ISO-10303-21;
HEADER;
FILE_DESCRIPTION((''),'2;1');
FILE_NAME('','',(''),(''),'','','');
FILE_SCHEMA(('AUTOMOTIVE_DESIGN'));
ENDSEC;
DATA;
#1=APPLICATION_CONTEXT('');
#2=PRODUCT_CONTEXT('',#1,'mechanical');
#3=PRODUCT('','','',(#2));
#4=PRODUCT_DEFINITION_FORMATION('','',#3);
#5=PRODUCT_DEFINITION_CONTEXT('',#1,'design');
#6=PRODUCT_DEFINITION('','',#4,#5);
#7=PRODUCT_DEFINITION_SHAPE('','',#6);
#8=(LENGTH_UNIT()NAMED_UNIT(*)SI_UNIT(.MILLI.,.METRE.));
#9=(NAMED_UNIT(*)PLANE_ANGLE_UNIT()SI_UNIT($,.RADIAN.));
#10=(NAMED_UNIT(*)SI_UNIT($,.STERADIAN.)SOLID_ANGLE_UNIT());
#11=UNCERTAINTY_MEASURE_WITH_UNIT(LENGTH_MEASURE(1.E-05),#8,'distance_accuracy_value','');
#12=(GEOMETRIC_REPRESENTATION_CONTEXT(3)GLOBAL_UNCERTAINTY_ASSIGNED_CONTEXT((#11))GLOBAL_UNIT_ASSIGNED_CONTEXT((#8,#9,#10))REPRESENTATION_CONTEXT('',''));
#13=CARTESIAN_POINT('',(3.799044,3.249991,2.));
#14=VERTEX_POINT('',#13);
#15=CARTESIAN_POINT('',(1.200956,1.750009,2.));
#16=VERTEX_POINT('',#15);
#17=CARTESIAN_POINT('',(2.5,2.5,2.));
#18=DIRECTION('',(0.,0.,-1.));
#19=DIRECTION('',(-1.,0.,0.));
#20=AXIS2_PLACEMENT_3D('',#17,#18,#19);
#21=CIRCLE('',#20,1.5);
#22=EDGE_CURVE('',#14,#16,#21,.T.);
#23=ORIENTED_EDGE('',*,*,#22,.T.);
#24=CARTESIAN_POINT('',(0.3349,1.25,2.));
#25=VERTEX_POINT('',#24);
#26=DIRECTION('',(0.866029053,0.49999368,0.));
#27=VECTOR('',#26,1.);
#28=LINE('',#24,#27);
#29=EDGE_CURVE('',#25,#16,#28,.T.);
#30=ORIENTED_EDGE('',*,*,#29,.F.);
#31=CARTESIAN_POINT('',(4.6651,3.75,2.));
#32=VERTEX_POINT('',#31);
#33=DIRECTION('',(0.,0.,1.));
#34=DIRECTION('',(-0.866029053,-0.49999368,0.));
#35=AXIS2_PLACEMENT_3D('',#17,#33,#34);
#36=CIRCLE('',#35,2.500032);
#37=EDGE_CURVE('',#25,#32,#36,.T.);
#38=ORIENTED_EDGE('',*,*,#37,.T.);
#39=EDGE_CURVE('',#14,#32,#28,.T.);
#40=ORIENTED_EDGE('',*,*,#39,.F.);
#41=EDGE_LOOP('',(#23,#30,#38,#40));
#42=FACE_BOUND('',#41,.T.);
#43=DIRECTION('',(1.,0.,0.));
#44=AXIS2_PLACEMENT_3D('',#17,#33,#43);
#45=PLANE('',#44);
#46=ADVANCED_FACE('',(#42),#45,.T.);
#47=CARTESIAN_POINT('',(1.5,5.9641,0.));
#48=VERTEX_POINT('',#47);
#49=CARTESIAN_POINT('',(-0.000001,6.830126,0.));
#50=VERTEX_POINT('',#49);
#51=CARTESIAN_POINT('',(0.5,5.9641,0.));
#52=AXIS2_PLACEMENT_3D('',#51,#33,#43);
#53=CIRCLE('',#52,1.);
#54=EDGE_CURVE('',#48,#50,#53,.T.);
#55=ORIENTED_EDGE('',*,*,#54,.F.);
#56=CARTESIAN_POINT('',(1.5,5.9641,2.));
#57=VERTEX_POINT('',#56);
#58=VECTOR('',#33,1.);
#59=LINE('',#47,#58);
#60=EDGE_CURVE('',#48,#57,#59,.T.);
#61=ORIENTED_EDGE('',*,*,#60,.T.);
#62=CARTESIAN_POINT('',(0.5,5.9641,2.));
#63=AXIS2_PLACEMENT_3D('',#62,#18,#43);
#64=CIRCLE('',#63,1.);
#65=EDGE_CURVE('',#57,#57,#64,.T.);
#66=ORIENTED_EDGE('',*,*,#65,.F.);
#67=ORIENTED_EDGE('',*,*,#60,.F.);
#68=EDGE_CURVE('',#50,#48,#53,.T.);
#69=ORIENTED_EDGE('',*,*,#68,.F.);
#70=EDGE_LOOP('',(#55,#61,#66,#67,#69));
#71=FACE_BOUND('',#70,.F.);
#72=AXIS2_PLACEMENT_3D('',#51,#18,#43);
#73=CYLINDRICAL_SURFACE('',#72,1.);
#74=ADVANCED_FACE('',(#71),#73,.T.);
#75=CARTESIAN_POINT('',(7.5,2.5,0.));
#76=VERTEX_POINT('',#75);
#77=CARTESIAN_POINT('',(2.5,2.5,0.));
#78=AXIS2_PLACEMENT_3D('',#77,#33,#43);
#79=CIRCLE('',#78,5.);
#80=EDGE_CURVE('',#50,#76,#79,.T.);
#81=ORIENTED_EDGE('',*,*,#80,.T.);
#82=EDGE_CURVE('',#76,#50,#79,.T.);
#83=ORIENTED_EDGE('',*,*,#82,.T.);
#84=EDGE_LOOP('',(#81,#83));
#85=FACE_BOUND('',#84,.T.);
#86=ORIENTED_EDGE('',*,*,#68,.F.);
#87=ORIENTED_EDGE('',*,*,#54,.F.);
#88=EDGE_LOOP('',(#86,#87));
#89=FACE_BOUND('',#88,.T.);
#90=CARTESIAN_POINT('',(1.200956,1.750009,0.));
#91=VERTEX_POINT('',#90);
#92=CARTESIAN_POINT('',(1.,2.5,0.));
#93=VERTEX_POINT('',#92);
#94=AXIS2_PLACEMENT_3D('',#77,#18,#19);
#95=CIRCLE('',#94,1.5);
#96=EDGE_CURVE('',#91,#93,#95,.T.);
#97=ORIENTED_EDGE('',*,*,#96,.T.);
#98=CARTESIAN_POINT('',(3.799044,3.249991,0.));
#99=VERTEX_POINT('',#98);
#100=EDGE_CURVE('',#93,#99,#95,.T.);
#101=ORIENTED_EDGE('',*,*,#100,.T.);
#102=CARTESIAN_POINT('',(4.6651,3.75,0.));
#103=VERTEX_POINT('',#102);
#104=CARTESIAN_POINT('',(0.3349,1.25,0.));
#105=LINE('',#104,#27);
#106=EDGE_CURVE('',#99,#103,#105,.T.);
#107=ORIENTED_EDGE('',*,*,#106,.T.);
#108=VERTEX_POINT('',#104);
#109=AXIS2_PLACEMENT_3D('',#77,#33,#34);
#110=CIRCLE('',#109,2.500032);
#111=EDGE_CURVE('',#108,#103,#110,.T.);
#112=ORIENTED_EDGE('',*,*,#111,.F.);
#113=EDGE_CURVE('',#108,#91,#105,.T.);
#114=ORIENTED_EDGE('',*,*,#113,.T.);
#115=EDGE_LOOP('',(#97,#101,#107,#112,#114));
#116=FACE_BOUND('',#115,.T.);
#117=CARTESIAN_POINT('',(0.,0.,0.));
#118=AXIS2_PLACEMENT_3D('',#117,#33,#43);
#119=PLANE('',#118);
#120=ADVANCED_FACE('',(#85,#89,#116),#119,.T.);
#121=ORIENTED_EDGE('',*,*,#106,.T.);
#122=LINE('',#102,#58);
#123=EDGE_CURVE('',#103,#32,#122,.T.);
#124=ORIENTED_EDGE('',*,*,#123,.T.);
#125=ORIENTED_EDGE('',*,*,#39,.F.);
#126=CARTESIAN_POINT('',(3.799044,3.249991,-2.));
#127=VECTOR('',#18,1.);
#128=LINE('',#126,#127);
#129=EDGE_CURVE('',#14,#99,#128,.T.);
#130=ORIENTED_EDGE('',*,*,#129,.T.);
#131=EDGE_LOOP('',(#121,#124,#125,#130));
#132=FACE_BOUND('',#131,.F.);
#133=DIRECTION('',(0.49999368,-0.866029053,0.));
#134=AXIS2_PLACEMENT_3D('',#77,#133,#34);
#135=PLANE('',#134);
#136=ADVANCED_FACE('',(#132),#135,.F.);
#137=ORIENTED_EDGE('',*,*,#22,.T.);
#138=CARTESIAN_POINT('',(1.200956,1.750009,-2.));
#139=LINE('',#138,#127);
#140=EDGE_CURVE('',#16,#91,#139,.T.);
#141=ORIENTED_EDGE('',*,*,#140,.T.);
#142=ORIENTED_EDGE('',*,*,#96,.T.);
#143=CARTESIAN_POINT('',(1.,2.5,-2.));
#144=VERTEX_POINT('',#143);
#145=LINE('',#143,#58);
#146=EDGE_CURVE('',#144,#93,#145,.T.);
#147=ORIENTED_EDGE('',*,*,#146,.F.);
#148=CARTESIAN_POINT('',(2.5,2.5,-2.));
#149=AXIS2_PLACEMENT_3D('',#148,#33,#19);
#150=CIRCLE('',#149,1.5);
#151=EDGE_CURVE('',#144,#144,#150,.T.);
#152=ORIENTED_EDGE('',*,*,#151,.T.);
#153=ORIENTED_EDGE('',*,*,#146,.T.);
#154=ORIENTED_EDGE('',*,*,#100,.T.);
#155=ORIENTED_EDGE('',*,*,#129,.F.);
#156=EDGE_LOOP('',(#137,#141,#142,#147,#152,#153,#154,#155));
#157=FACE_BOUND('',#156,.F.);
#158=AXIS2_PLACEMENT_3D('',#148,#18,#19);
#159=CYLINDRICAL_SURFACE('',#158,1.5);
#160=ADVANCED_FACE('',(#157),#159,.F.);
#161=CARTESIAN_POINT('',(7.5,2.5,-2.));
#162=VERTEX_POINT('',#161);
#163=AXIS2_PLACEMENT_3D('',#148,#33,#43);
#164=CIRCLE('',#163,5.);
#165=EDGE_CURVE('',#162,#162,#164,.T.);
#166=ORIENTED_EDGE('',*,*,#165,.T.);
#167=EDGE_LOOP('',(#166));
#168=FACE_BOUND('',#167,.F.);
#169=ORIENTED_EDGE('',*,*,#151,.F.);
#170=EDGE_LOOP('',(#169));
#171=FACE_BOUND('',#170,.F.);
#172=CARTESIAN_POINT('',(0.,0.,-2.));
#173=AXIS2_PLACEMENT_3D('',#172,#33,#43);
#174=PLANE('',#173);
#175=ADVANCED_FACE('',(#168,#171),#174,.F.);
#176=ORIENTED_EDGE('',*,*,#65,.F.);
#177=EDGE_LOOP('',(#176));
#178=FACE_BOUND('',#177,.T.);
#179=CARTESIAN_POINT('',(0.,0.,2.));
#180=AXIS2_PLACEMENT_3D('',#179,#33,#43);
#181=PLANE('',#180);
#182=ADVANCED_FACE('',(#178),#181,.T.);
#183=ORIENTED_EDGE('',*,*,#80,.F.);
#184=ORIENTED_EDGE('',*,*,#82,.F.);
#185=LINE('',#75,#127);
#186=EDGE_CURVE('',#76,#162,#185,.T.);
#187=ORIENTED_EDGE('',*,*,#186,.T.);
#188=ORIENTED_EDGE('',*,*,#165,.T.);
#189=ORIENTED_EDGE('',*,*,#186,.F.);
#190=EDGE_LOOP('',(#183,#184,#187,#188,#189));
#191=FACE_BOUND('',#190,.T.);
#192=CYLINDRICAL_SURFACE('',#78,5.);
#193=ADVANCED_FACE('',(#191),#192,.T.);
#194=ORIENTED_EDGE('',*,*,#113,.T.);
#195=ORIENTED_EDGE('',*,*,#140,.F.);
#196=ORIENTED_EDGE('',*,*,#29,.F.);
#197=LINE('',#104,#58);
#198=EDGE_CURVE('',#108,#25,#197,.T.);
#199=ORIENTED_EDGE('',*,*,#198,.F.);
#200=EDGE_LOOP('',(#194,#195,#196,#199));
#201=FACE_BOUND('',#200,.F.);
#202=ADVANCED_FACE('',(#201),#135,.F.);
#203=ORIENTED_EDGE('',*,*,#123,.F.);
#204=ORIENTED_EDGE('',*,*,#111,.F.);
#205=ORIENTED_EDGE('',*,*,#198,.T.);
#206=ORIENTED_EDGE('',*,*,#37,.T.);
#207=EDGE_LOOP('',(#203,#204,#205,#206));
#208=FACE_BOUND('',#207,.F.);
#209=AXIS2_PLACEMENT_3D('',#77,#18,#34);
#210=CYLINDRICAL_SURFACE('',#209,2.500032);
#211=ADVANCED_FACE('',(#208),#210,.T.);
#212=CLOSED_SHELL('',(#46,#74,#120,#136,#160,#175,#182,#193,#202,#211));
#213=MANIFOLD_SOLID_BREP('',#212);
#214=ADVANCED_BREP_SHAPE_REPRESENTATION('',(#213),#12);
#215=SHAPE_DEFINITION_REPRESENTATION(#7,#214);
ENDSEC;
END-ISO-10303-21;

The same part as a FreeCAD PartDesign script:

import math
import FreeCAD as App
import Part
import Sketcher

V = App.Vector
Q = App.Units.Quantity

doc = App.newDocument("Part")
params = doc.addObject("Spreadsheet::Sheet", "Params")
for row, (alias, value) in enumerate([
    ("sketch1_diameter", "2 mm"),
    ("pad1_length", "2 mm"),
    ("sketch2_diameter", "10 mm"),
    ("pad2_length", "2 mm"),
    ("sketch3_radius", "2.5 mm"),
    ("pad3_length", "2 mm"),
    ("sketch4_diameter", "3 mm"),
    ("pocket1_length", "4 mm"),
], start=1):
    params.set(f"A{row}", alias)
    params.set(f"B{row}", "=" + value)
    params.setAlias(f"B{row}", alias)

body = doc.addObject("PartDesign::Body", "Body")

# Sketch on XY plane
sketch1 = doc.addObject("Sketcher::SketchObject", "Sketch")
body.addObject(sketch1)
sketch1.AttachmentSupport = (doc.XY_Plane, [""])
sketch1.MapMode = "FlatFace"
sketch1.addGeometry(Part.Circle(V(0.5, 6, 0), V(0, 0, 1), 1), False)
sketch1.addConstraint([
    Sketcher.Constraint("Diameter", 0, 2.0),
    Sketcher.Constraint("DistanceX", -1, 1, 0, 3, 0.5),
    Sketcher.Constraint("DistanceY", -1, 1, 0, 3, 5.964),
])
sketch1.setExpression("Constraints[0]", "Params.sketch1_diameter")
pad1 = doc.addObject("PartDesign::Pad", "Pad")
body.addObject(pad1)
pad1.Profile = sketch1
pad1.setExpression("Length", "Params.pad1_length")

# Sketch on XY plane
sketch2 = doc.addObject("Sketcher::SketchObject", "Sketch001")
body.addObject(sketch2)
sketch2.AttachmentSupport = (doc.XY_Plane, [""])
sketch2.MapMode = "FlatFace"
sketch2.addGeometry(Part.Circle(V(2, 2, 0), V(0, 0, 1), 5), False)
sketch2.addConstraint([
    Sketcher.Constraint("Diameter", 0, 10.0),
    Sketcher.Constraint("DistanceX", -1, 1, 0, 3, 2.5),
    Sketcher.Constraint("DistanceY", -1, 1, 0, 3, 2.5),
])
sketch2.setExpression("Constraints[0]", "Params.sketch2_diameter")
pad2 = doc.addObject("PartDesign::Pad", "Pad001")
body.addObject(pad2)
pad2.Profile = sketch2
pad2.setExpression("Length", "Params.pad2_length")
pad2.Reversed = True

# Sketch on XY plane
sketch3 = doc.addObject("Sketcher::SketchObject", "Sketch002")
body.addObject(sketch3)
sketch3.AttachmentSupport = (doc.XY_Plane, [""])
sketch3.MapMode = "FlatFace"
sketch3.addGeometry([
    Part.LineSegment(V(4.7, 3.8, 0), V(0.3, 1.2, 0)),
    Part.ArcOfCircle(Part.Circle(V(2.5, 2.5, 0), V(0, 0, 1), 2.5), math.radians(-150), math.radians(30)),
], False)
sketch3.addConstraint([
    Sketcher.Constraint("Coincident", 0, 1, 1, 2),
    Sketcher.Constraint("Coincident", 1, 1, 0, 2),
    Sketcher.Constraint("Radius", 1, 2.5),
    Sketcher.Constraint("Angle", 0, Q("-150.0004 deg")),
    Sketcher.Constraint("DistanceX", -1, 1, 1, 3, 2.5),
    Sketcher.Constraint("DistanceY", -1, 1, 1, 3, 2.5),
    Sketcher.Constraint("DistanceY", -1, 1, 0, 1, 3.75),
])
sketch3.setExpression("Constraints[2]", "Params.sketch3_radius")
pad3 = doc.addObject("PartDesign::Pad", "Pad002")
body.addObject(pad3)
pad3.Profile = sketch3
pad3.setExpression("Length", "Params.pad3_length")

# Sketch on XY plane
sketch4 = doc.addObject("Sketcher::SketchObject", "Sketch003")
body.addObject(sketch4)
sketch4.AttachmentSupport = (doc.XY_Plane, [""])
sketch4.MapMode = "FlatFace"
sketch4.AttachmentOffset = App.Placement(V(0, 0, -2), App.Rotation())
sketch4.addGeometry(Part.Circle(V(2.5, 2.5, 0), V(0, 0, 1), 1.5), False)
sketch4.addConstraint([
    Sketcher.Constraint("Diameter", 0, 3.0),
    Sketcher.Constraint("DistanceX", -1, 1, 0, 3, 2.5),
    Sketcher.Constraint("DistanceY", -1, 1, 0, 3, 2.5),
])
sketch4.setExpression("Constraints[0]", "Params.sketch4_diameter")
pocket1 = doc.addObject("PartDesign::Pocket", "Pocket")
body.addObject(pocket1)
pocket1.Profile = sketch4
pocket1.setExpression("Length", "Params.pocket1_length")
pocket1.Reversed = True

doc.recompute()
